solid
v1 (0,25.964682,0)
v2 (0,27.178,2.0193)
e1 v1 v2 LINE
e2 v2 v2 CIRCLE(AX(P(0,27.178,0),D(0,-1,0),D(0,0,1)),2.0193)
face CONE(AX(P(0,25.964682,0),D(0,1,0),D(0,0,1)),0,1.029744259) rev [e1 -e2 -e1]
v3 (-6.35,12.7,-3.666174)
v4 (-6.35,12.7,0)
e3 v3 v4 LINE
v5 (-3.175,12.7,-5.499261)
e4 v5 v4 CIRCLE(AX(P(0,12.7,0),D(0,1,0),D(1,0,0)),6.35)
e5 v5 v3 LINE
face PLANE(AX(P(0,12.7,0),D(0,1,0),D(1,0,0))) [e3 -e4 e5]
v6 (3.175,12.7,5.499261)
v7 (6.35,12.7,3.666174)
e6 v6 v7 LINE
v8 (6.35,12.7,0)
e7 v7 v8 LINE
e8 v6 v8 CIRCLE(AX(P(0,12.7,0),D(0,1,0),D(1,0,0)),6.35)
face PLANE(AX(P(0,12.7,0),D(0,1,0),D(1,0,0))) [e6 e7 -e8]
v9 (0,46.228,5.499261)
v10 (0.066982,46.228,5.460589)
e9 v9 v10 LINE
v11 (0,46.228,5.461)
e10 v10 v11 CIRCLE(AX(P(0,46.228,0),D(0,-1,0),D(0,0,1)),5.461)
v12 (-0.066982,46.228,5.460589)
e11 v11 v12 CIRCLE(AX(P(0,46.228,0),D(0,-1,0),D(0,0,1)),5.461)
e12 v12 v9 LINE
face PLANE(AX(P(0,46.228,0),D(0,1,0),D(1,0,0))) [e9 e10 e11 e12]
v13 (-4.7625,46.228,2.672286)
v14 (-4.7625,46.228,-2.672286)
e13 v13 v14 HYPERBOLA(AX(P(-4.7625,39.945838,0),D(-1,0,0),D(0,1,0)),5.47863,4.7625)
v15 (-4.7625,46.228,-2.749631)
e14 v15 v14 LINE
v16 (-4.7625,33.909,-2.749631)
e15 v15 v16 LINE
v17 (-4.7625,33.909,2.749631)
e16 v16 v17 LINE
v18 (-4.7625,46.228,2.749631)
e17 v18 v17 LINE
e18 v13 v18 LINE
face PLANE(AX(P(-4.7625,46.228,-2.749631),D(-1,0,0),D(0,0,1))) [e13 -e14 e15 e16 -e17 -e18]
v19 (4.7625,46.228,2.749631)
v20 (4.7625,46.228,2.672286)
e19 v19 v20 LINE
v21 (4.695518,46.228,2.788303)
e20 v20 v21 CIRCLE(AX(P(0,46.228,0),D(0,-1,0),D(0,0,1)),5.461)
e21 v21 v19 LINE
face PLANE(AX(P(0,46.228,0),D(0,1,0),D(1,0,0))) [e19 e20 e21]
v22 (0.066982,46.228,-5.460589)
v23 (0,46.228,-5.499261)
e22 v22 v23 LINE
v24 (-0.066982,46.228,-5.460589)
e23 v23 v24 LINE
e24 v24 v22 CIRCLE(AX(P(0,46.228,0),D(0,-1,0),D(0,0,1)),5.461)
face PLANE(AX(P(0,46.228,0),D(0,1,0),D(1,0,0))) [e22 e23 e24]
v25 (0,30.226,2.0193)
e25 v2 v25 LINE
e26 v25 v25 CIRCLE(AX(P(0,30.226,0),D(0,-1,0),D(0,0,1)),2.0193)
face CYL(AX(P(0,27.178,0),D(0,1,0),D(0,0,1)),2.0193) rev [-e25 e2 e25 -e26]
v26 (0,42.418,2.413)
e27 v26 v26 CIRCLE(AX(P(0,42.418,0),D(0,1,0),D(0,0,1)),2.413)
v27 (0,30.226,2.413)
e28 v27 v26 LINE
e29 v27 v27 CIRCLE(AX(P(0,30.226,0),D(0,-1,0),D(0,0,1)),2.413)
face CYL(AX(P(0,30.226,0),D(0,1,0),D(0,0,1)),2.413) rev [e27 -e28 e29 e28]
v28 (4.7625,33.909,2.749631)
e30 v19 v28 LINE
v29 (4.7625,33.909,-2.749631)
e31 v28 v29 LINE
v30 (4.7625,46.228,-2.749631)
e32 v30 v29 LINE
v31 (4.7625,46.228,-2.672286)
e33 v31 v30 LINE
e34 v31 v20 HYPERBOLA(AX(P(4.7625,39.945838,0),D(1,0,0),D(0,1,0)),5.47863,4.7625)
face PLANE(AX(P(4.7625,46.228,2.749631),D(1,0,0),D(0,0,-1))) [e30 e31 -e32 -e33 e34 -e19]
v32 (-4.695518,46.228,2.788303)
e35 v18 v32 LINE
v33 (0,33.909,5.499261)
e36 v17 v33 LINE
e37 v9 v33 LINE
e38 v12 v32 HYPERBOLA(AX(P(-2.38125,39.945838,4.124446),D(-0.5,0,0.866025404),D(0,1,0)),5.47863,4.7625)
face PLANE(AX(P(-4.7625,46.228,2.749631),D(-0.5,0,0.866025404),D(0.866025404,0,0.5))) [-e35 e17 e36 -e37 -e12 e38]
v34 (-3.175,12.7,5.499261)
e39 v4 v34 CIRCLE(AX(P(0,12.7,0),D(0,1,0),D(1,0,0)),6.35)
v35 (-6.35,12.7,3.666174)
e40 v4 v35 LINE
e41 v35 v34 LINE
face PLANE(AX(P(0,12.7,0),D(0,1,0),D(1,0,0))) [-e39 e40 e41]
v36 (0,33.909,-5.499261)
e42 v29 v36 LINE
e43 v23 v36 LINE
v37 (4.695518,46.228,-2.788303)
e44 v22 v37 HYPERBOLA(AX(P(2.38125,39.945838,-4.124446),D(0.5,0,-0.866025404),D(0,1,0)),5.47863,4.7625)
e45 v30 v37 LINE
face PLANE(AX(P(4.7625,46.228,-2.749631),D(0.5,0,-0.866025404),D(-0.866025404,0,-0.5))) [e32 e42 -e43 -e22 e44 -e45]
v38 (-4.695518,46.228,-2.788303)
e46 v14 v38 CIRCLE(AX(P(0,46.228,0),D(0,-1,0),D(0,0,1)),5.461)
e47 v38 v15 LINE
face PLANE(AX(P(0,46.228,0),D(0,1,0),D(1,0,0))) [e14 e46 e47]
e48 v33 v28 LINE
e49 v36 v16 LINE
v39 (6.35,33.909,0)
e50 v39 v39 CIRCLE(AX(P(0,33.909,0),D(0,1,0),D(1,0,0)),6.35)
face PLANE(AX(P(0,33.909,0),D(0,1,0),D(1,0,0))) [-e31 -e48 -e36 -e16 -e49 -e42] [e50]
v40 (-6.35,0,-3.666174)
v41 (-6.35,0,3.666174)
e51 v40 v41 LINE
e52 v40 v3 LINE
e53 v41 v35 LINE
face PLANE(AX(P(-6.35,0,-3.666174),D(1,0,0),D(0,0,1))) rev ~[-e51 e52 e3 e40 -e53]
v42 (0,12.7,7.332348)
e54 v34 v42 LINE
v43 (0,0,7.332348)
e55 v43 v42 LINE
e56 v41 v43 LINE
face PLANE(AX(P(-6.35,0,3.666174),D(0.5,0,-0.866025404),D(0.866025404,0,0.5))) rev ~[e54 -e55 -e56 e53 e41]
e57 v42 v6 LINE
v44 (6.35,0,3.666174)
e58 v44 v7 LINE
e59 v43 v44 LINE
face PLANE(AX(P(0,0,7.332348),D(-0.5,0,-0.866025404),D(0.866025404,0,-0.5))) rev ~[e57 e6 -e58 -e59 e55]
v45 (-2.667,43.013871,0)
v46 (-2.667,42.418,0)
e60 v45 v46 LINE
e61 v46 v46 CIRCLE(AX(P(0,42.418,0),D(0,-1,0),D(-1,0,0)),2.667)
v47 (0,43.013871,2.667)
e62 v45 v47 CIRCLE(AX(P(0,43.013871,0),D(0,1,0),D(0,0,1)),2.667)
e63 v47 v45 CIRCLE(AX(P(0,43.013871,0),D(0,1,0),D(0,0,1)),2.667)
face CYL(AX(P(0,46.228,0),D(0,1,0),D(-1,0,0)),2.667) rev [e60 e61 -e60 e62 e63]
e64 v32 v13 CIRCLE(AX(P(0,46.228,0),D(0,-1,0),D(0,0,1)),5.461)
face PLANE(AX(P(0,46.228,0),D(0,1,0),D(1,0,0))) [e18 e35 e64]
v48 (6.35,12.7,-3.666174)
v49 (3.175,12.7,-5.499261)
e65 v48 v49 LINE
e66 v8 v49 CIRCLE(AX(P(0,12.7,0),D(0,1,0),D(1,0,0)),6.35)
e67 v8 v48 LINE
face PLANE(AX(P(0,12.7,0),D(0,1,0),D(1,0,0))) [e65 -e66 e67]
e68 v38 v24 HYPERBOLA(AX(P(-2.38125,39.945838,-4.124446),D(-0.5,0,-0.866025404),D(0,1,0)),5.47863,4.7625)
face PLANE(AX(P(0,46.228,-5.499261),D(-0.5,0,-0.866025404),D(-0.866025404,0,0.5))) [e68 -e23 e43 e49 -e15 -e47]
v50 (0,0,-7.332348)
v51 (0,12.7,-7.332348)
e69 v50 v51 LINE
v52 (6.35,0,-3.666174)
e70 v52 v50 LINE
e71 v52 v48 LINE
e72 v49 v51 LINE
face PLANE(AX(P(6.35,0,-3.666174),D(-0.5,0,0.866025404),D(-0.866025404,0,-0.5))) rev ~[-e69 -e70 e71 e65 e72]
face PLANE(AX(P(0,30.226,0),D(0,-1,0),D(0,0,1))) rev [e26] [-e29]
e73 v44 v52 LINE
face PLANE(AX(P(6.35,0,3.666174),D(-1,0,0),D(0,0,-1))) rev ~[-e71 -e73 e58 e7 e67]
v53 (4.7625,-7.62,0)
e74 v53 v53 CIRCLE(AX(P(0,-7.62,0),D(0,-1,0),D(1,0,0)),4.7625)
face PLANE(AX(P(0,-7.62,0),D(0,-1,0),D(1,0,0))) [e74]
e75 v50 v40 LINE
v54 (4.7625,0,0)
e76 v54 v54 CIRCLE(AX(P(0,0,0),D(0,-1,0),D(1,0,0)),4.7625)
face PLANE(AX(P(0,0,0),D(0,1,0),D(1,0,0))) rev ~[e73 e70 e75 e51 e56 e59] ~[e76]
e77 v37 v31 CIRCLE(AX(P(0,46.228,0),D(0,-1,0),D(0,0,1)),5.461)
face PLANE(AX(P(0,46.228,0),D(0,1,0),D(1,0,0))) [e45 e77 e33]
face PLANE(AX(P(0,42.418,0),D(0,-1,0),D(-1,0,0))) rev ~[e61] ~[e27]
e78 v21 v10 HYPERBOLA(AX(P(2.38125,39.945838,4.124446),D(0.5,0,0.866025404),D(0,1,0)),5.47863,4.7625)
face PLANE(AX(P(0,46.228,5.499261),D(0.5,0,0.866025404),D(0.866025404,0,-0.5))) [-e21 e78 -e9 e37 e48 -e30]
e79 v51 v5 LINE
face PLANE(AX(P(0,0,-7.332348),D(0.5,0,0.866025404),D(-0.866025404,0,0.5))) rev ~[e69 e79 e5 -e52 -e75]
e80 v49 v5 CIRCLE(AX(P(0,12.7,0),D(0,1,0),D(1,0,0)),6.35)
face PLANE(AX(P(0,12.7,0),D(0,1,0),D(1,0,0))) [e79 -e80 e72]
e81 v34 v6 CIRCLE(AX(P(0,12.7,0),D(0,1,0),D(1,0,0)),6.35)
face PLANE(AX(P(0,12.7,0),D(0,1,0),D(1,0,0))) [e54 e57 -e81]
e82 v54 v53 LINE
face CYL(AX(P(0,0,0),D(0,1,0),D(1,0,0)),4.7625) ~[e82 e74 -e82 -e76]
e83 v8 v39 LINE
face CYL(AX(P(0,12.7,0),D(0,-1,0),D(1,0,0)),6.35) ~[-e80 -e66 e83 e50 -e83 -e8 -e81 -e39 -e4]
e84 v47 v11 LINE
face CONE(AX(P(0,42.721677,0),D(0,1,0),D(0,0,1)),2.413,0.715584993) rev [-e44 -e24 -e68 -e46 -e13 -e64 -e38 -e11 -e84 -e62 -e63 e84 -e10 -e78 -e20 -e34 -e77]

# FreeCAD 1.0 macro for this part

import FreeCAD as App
import Part
import Sketcher
from FreeCAD import Vector
Q = App.Units.Quantity


def add_polygon(sketch, points):
    """Adds a closed chain of lines whose ends are joined by coincident constraints."""
    first, n = sketch.GeometryCount, len(points)
    for a, b in zip(points, points[1:] + points[:1]):
        sketch.addGeometry(Part.LineSegment(App.Vector(*a, 0), App.Vector(*b, 0)), False)
    for i in range(n):
        sketch.addConstraint(Sketcher.Constraint("Coincident", first + i, 2, first + (i + 1) % n, 1))

doc = App.newDocument("Part")
body = doc.addObject("PartDesign::Body", "Body")

# Sketch on XZ plane
sketch1 = body.newObject("Sketcher::SketchObject", "Sketch")
sketch1.AttachmentSupport = (doc.getObject("XZ_Plane"), [""])
sketch1.MapMode = "FlatFace"
add_polygon(sketch1, [(6, 4), (6, -4), (0, -7), (-6, -4), (-6, 4), (0, 7)])  # lines 0-5
sketch1.addConstraint(Sketcher.Constraint("Vertical", 0))
sketch1.addConstraint(Sketcher.Constraint("Vertical", 3))
sketch1.addConstraint(Sketcher.Constraint("Symmetric", 0, 2, 3, 2, -1, 1))
sketch1.addConstraint(Sketcher.Constraint("Symmetric", 1, 2, 4, 2, -1, 1))
sketch1.addConstraint(Sketcher.Constraint("PointOnObject", 1, 2, -2))
sketch1.addConstraint(Sketcher.Constraint("Parallel", 2, 5))
sketch1.addConstraint(Sketcher.Constraint("Horizontal", 0, 2, 2, 2))
sketch1.addConstraint(Sketcher.Constraint("Angle", 1, Q("-150 deg")))
sketch1.addConstraint(Sketcher.Constraint("DistanceX", 2, 2, 0, 2, Q("0.5 in")))
sketch1.addConstraint(Sketcher.Constraint("DistanceY", 0, 2, 0, 1, 7.332348))
pad1 = body.newObject("PartDesign::Pad", "Pad")
pad1.Profile = sketch1
pad1.Length = Q("0.5 in")
pad1.Reversed = True

# Sketch on XZ plane
sketch2 = body.newObject("Sketcher::SketchObject", "Sketch001")
sketch2.AttachmentSupport = (doc.getObject("XZ_Plane"), [""])
sketch2.MapMode = "FlatFace"
sketch2.addGeometry(Part.Circle(Vector(0, 0, 0), Vector(0, 0, 1), 4.8), False)
sketch2.addConstraint(Sketcher.Constraint("Coincident", 0, 3, -1, 1))
sketch2.addConstraint(Sketcher.Constraint("Diameter", 0, Q("0.375 in")))
pad2 = body.newObject("PartDesign::Pad", "Pad001")
pad2.Profile = sketch2
pad2.Length = Q("0.3 in")

# Sketch on XZ plane
sketch3 = body.newObject("Sketcher::SketchObject", "Sketch002")
sketch3.AttachmentSupport = (doc.getObject("XZ_Plane"), [""])
sketch3.MapMode = "FlatFace"
sketch3.AttachmentOffset = App.Placement(Vector(0, 0, -0.5 * 25.4), App.Rotation())
sketch3.addGeometry(Part.Circle(Vector(0, 0, 0), Vector(0, 0, 1), 6), False)
sketch3.addConstraint(Sketcher.Constraint("Coincident", 0, 3, -1, 1))
sketch3.addConstraint(Sketcher.Constraint("Diameter", 0, Q("0.5 in")))
pad3 = body.newObject("PartDesign::Pad", "Pad002")
pad3.Profile = sketch3
pad3.Length = Q("1.32 in")
pad3.Reversed = True

# Sketch on YZ plane
sketch4 = body.newObject("Sketcher::SketchObject", "Sketch003")
sketch4.AttachmentSupport = (doc.getObject("YZ_Plane"), [""])
sketch4.MapMode = "FlatFace"
add_polygon(sketch4, [(25.96, 0), (46.23, 0), (46.23, 5.46), (42.72, 2.41), (30.23, 2.41), (30.23, 2.02), (27.18, 2.02)])  # lines 0-6
sketch4.addConstraint(Sketcher.Constraint("Horizontal", 0))
sketch4.addConstraint(Sketcher.Constraint("Vertical", 1))
sketch4.addConstraint(Sketcher.Constraint("Horizontal", 3))
sketch4.addConstraint(Sketcher.Constraint("Vertical", 4))
sketch4.addConstraint(Sketcher.Constraint("Horizontal", 5))
sketch4.addConstraint(Sketcher.Constraint("PointOnObject", 0, 2, -1))
sketch4.addConstraint(Sketcher.Constraint("Angle", 2, Q("-139 deg")))
sketch4.addConstraint(Sketcher.Constraint("Angle", 6, Q("-121 deg")))
sketch4.addConstraint(Sketcher.Constraint("DistanceX", 5, 2, 5, 1, Q("0.12 in")))
sketch4.addConstraint(Sketcher.Constraint("DistanceY", 1, 1, 1, 2, Q("0.215 in")))
sketch4.addConstraint(Sketcher.Constraint("DistanceX", -1, 1, 0, 2, Q("1.82 in")))
sketch4.addConstraint(Sketcher.Constraint("DistanceX", -1, 1, 3, 2, Q("1.19 in")))
sketch4.addConstraint(Sketcher.Constraint("DistanceY", 2, 2, 1, 2, Q("0.12 in")))
sketch4.addConstraint(Sketcher.Constraint("DistanceY", 4, 2, 4, 1, Q("0.0155 in")))
groove = body.newObject("PartDesign::Groove", "Groove")
groove.Profile = sketch4
groove.ReferenceAxis = (sketch4, ["H_Axis"])
groove.Angle = 360

# Sketch on XZ plane
sketch5 = body.newObject("Sketcher::SketchObject", "Sketch004")
sketch5.AttachmentSupport = (doc.getObject("XZ_Plane"), [""])
sketch5.MapMode = "FlatFace"
sketch5.AttachmentOffset = App.Placement(Vector(0, 0, -1.82 * 25.4), App.Rotation())
sketch5.addGeometry(Part.Circle(Vector(0, 0, 0), Vector(0, 0, 1), 6), False)  # 0
add_polygon(sketch5, [(0, 5), (-5, 3), (-5, -3), (0, -5), (5, -3), (5, 3)])  # lines 1-6
sketch5.addConstraint(Sketcher.Constraint("Vertical", 2))
sketch5.addConstraint(Sketcher.Constraint("Vertical", 5))
sketch5.addConstraint(Sketcher.Constraint("Coincident", 0, 3, -1, 1))
sketch5.addConstraint(Sketcher.Constraint("Symmetric", 1, 2, 4, 2, -1, 1))
sketch5.addConstraint(Sketcher.Constraint("Symmetric", 3, 2, 6, 2, -1, 1))
sketch5.addConstraint(Sketcher.Constraint("PointOnObject", 3, 2, -2))
sketch5.addConstraint(Sketcher.Constraint("Parallel", 3, 6))
sketch5.addConstraint(Sketcher.Constraint("Horizontal", 2, 2, 4, 2))
sketch5.addConstraint(Sketcher.Constraint("Diameter", 0, Q("0.5 in")))
sketch5.addConstraint(Sketcher.Constraint("Angle", 1, Q("-150 deg")))
sketch5.addConstraint(Sketcher.Constraint("DistanceX", 1, 2, -1, 1, Q("0.1875 in")))
sketch5.addConstraint(Sketcher.Constraint("DistanceY", 2, 2, 2, 1, 5.499261))
pocket1 = body.newObject("PartDesign::Pocket", "Pocket")
pocket1.Profile = sketch5
pocket1.Length = Q("0.485 in")
pocket1.Reversed = True

# Sketch on XZ plane
sketch6 = body.newObject("Sketcher::SketchObject", "Sketch005")
sketch6.AttachmentSupport = (doc.getObject("XZ_Plane"), [""])
sketch6.MapMode = "FlatFace"
sketch6.AttachmentOffset = App.Placement(Vector(0, 0, -1.82 * 25.4), App.Rotation())
sketch6.addGeometry(Part.Circle(Vector(0, 0, 0), Vector(0, 0, 1), 2.7), False)
sketch6.addConstraint(Sketcher.Constraint("Coincident", 0, 3, -1, 1))
sketch6.addConstraint(Sketcher.Constraint("Diameter", 0, Q("0.21 in")))
pocket2 = body.newObject("PartDesign::Pocket", "Pocket001")
pocket2.Profile = sketch6
pocket2.Length = Q("0.15 in")
pocket2.Reversed = True

doc.recompute()
